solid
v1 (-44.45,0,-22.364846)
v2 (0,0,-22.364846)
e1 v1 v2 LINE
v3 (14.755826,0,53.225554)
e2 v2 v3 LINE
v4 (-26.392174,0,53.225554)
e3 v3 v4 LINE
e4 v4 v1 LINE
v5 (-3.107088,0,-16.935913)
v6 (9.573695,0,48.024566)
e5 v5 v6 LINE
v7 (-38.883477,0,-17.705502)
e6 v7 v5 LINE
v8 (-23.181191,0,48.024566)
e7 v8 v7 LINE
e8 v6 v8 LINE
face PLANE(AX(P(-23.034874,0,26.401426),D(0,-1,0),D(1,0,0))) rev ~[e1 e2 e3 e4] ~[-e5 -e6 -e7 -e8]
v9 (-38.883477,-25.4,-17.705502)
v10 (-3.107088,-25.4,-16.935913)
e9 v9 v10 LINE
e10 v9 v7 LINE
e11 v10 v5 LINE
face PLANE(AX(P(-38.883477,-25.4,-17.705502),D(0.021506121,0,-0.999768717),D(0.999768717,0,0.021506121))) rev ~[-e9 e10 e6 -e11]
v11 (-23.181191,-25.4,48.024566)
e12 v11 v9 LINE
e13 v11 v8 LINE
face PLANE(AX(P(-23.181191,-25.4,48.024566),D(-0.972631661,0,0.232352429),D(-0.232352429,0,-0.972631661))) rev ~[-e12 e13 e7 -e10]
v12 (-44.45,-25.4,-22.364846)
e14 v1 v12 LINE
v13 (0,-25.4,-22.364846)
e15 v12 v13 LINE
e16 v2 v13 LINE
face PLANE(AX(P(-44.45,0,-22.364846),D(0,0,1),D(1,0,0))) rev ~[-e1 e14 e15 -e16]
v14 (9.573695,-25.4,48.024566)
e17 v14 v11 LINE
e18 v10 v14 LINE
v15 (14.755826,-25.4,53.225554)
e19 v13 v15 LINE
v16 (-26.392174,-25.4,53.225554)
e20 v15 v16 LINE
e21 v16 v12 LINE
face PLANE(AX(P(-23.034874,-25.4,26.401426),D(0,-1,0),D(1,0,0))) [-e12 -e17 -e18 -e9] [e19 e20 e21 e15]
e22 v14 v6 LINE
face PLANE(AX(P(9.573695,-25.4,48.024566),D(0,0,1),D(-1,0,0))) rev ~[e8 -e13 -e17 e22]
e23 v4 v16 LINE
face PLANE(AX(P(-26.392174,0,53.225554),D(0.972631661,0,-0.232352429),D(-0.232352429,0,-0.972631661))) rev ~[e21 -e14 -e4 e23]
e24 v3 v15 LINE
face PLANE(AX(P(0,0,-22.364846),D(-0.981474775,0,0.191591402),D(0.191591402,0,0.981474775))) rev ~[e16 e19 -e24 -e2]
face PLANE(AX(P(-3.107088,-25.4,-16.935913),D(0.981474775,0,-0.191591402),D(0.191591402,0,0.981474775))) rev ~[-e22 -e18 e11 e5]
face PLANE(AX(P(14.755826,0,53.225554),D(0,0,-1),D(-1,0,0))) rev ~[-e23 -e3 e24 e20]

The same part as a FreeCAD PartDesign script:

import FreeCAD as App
import Part
import Sketcher
Q = App.Units.Quantity


def add_polygon(sketch, points):
    """Adds a closed chain of lines whose ends are joined by coincident constraints."""
    first, n = sketch.GeometryCount, len(points)
    for a, b in zip(points, points[1:] + points[:1]):
        sketch.addGeometry(Part.LineSegment(App.Vector(*a, 0), App.Vector(*b, 0)), False)
    for i in range(n):
        sketch.addConstraint(Sketcher.Constraint("Coincident", first + i, 2, first + (i + 1) % n, 1))

doc = App.newDocument("Part")
params = doc.addObject("Spreadsheet::Sheet", "Params")
for row, (alias, value) in enumerate([
    ("sketch1_width", "1.62 in"),
    ("sketch1_width2", "1.75 in"),
    ("pad1_length", "1 in"),
    ("pocket1_length", "3 in"),
], start=1):
    params.set(f"A{row}", alias)
    params.set(f"B{row}", "=" + value)
    params.setAlias(f"B{row}", alias)

body = doc.addObject("PartDesign::Body", "Body")

sketch1 = doc.addObject("Sketcher::SketchObject", "Sketch")
body.addObject(sketch1)
sketch1.AttachmentSupport = (doc.XZ_Plane, [""])
sketch1.MapMode = "FlatFace"
add_polygon(sketch1, [(0, -22), (15, 53), (-26, 53), (-44, -22)])
sketch1.addConstraint([
    Sketcher.Constraint("Horizontal", 1),
    Sketcher.Constraint("Horizontal", 3),
    Sketcher.Constraint("PointOnObject", 3, 2, -2),
    Sketcher.Constraint("DistanceX", 1, 2, 1, 1, Q("1.62 in")),
    Sketcher.Constraint("DistanceX", 3, 1, 3, 2, Q("1.75 in")),
    Sketcher.Constraint("DistanceY", 2, 2, 1, 2, Q("2.976 in")),
    Sketcher.Constraint("Distance", 0, 77.01716),
    Sketcher.Constraint("DistanceY", -1, 1, 0, 2, 53.225554),
])
sketch1.setExpression("Constraints[7]", "Params.sketch1_width")
sketch1.setExpression("Constraints[8]", "Params.sketch1_width2")
pad1 = doc.addObject("PartDesign::Pad", "Pad")
body.addObject(pad1)
pad1.Profile = sketch1
pad1.setExpression("Length", "Params.pad1_length")

sketch2 = doc.addObject("Sketcher::SketchObject", "Sketch001")
body.addObject(sketch2)
sketch2.AttachmentSupport = (doc.XZ_Plane, [""])
sketch2.MapMode = "FlatFace"
sketch2.AttachmentOffset = App.Placement(App.Vector(0, 0, 1 * 25.4), App.Rotation())
add_polygon(sketch2, [(-23, 48), (-39, -18), (-3, -17), (10, 48)])
sketch2.addConstraint([
    Sketcher.Constraint("Horizontal", 3),
    Sketcher.Constraint("Distance", 2, 66.1866),
    Sketcher.Constraint("DistanceY", 0, 2, -1, 1, 17.705502),
    Sketcher.Constraint("Distance", 0, 67.57961),
    Sketcher.Constraint("DistanceX", 3, 2, 3, 1, 32.754886),
    Sketcher.Constraint("DistanceX", 1, 2, -1, 1, 3.107088),
    Sketcher.Constraint("DistanceX", 3, 2, -1, 1, 23.181191),
    Sketcher.Constraint("DistanceX", 0, 2, 1, 2, 35.776389),
])
pocket1 = doc.addObject("PartDesign::Pocket", "Pocket")
body.addObject(pocket1)
pocket1.Profile = sketch2
pocket1.setExpression("Length", "Params.pocket1_length")

doc.recompute()
